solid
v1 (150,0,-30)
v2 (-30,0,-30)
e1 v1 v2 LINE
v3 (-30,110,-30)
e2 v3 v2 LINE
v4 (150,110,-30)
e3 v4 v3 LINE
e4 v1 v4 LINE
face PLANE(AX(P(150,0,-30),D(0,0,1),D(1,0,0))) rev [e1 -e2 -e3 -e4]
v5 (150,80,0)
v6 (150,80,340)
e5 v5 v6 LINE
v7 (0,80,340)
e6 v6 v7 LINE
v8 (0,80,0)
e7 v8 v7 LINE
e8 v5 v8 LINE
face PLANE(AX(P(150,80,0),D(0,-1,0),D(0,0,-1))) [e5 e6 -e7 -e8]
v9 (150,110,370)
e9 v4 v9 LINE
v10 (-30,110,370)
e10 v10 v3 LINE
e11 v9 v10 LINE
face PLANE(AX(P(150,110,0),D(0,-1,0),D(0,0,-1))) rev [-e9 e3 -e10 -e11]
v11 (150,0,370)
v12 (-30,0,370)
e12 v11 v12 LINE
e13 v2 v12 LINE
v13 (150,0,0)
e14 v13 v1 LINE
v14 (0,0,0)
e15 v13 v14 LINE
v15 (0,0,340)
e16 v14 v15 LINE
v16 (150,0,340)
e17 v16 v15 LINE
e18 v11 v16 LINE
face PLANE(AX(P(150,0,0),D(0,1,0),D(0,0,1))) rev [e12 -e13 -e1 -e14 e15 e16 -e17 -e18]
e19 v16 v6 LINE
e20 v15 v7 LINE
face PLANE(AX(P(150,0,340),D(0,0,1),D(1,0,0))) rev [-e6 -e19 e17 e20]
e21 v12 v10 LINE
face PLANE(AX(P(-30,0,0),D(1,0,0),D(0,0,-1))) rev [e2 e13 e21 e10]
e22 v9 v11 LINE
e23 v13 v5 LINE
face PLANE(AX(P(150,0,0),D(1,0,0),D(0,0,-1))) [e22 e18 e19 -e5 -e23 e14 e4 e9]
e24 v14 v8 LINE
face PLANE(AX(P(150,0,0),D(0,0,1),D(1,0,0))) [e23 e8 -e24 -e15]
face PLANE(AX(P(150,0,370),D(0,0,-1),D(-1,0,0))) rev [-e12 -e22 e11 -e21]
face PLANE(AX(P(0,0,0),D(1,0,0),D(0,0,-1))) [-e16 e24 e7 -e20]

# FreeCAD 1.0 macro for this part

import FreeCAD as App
import Part
import Sketcher
Q = App.Units.Quantity


def add_polygon(sketch, points):
    """Adds a closed chain of lines whose ends are joined by coincident constraints."""
    first, n = sketch.GeometryCount, len(points)
    for a, b in zip(points, points[1:] + points[:1]):
        sketch.addGeometry(Part.LineSegment(App.Vector(*a, 0), App.Vector(*b, 0)), False)
    for i in range(n):
        sketch.addConstraint(Sketcher.Constraint("Coincident", first + i, 2, first + (i + 1) % n, 1))

doc = App.newDocument("Part")
body = doc.addObject("PartDesign::Body", "Body")

# Sketch on YZ plane
sketch1 = body.newObject("Sketcher::SketchObject", "Sketch")
sketch1.AttachmentSupport = (doc.getObject("YZ_Plane"), [""])
sketch1.MapMode = "FlatFace"
add_polygon(sketch1, [(80, 0), (0, 0), (0, -30), (110, -30), (110, 370), (0, 370), (0, 340), (80, 340)])  # lines 0-7
sketch1.addConstraint([
    Sketcher.Constraint("Horizontal", 0),
    Sketcher.Constraint("Vertical", 1),
    Sketcher.Constraint("Horizontal", 2),
    Sketcher.Constraint("Vertical", 3),
    Sketcher.Constraint("Horizontal", 4),
    Sketcher.Constraint("Vertical", 5),
    Sketcher.Constraint("Horizontal", 6),
    Sketcher.Constraint("Vertical", 7),
    Sketcher.Constraint("Coincident", 0, 2, -1, 1),
    Sketcher.Constraint("PointOnObject", 4, 2, -2),
    Sketcher.Constraint("Equal", 1, 5),
    Sketcher.Constraint("DistanceX", 0, 2, 0, 1, Q("80 mm")),
    Sketcher.Constraint("DistanceX", 2, 1, 2, 2, Q("110 mm")),
    Sketcher.Constraint("DistanceY", 1, 2, 1, 1, Q("30 mm")),
    Sketcher.Constraint("DistanceY", 3, 1, 3, 2, Q("400 mm")),
])
pad1 = body.newObject("PartDesign::Pad", "Pad")
pad1.Profile = sketch1
pad1.Length = 150

# Sketch on YZ plane
sketch2 = body.newObject("Sketcher::SketchObject", "Sketch001")
sketch2.AttachmentSupport = (doc.getObject("YZ_Plane"), [""])
sketch2.MapMode = "FlatFace"
add_polygon(sketch2, [(110, -30), (0, -30), (0, 370), (110, 370)])  # lines 0-3
sketch2.addConstraint([
    Sketcher.Constraint("Horizontal", 0),
    Sketcher.Constraint("Vertical", 1),
    Sketcher.Constraint("Horizontal", 2),
    Sketcher.Constraint("Vertical", 3),
    Sketcher.Constraint("PointOnObject", 0, 2, -2),
    Sketcher.Constraint("DistanceX", 0, 2, 0, 1, Q("110 mm")),
    Sketcher.Constraint("DistanceY", 1, 1, 1, 2, Q("400 mm")),
    Sketcher.Constraint("DistanceY", 0, 2, -1, 1, Q("30 mm")),
])
pad2 = body.newObject("PartDesign::Pad", "Pad001")
pad2.Profile = sketch2
pad2.Length = 30
pad2.Reversed = True

doc.recompute()
